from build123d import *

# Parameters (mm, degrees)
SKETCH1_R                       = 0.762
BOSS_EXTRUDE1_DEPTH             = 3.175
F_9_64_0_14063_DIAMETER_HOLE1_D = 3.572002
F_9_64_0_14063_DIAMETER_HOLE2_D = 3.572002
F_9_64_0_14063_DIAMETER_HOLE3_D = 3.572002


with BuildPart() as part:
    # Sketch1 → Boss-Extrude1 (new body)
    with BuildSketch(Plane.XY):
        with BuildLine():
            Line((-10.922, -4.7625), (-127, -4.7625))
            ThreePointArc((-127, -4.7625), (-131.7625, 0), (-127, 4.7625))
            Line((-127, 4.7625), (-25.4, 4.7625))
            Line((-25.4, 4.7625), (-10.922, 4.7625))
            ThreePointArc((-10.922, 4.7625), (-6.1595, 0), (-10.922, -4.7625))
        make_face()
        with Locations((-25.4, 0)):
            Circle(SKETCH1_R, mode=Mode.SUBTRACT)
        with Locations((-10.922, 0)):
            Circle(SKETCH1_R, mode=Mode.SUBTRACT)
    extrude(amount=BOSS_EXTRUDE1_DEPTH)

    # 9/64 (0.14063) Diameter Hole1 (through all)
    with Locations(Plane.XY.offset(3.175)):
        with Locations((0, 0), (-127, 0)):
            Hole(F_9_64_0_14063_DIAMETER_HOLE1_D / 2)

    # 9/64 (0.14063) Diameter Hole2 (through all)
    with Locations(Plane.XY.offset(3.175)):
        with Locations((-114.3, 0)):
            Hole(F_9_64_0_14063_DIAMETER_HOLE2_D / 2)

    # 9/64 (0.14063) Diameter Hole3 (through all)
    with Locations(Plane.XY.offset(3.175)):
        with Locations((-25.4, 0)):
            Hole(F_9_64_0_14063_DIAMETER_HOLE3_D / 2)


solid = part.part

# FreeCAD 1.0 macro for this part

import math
import FreeCAD as App
import Part
import Sketcher
Q = App.Units.Quantity

doc = App.newDocument("Part")
body = doc.addObject("PartDesign::Body", "Body")

# Sketch on XY plane
sketch1 = doc.addObject("Sketcher::SketchObject", "Sketch")
body.addObject(sketch1)
sketch1.AttachmentSupport = (doc.XY_Plane, [""])
sketch1.MapMode = "FlatFace"
sketch1.addGeometry([
    Part.LineSegment(App.Vector(-127, -4.8, 0), App.Vector(-10.9, -4.8, 0)),  # 0
    Part.ArcOfCircle(Part.Circle(App.Vector(-10.9, 0, 0), App.Vector(0, 0, 1), 4.8), math.radians(-90), math.radians(90)),  # 1
    Part.LineSegment(App.Vector(-10.9, 4.8, 0), App.Vector(-127, 4.8, 0)),  # 2
    Part.ArcOfCircle(Part.Circle(App.Vector(-127, 0, 0), App.Vector(0, 0, 1), 4.8), math.radians(90), math.radians(270)),  # 3
    Part.Circle(App.Vector(-10.9, 0, 0), App.Vector(0, 0, 1), 0.8),  # 4
    Part.Circle(App.Vector(-25.4, 0, 0), App.Vector(0, 0, 1), 0.8),  # 5
], False)
sketch1.addConstraint([
    Sketcher.Constraint("Tangent", 0, 2, 1, 1),
    Sketcher.Constraint("Tangent", 1, 2, 2, 1),
    Sketcher.Constraint("Tangent", 2, 2, 3, 1),
    Sketcher.Constraint("Tangent", 3, 2, 0, 1),
    Sketcher.Constraint("Horizontal", 0),
    Sketcher.Constraint("Horizontal", 2),
    Sketcher.Constraint("Coincident", 4, 3, 1, 3),
    Sketcher.Constraint("Equal", 4, 5),
    Sketcher.Constraint("PointOnObject", 1, 3, -1),
    Sketcher.Constraint("PointOnObject", 5, 3, -1),
    Sketcher.Constraint("Diameter", 4, Q("0.06 in")),
    Sketcher.Constraint("DistanceX", 3, 3, -1, 1, Q("5 in")),
    Sketcher.Constraint("DistanceX", 5, 3, -1, 1, Q("1 in")),
    Sketcher.Constraint("Radius", 1, Q("0.1875 in")),
    Sketcher.Constraint("DistanceX", 0, 1, 0, 2, Q("4.57 in")),
])
pad1 = doc.addObject("PartDesign::Pad", "Pad")
body.addObject(pad1)
pad1.Profile = sketch1
pad1.Length = Q("0.125 in")

# Sketch on XY plane
sketch2 = doc.addObject("Sketcher::SketchObject", "Sketch001")
body.addObject(sketch2)
sketch2.AttachmentSupport = (doc.XY_Plane, [""])
sketch2.MapMode = "FlatFace"
sketch2.AttachmentOffset = App.Placement(App.Vector(0, 0, 0.125 * 25.4), App.Rotation())
sketch2.addGeometry([
    Part.Circle(App.Vector(0, 0, 0), App.Vector(0, 0, 1), 1.8),
    Part.Circle(App.Vector(-127, 0, 0), App.Vector(0, 0, 1), 1.8),
], False)
sketch2.addConstraint([
    Sketcher.Constraint("Coincident", 0, 3, -1, 1),
    Sketcher.Constraint("Equal", 0, 1),
    Sketcher.Constraint("PointOnObject", 1, 3, -1),
    Sketcher.Constraint("DistanceX", 1, 3, -1, 1, Q("5 in")),
    Sketcher.Constraint("Diameter", 0, Q("3.572002 mm")),
])
doc.recompute()
hole = doc.addObject("PartDesign::Hole", "Hole")
body.addObject(hole)
hole.Profile = sketch2
hole.ThreadType = "None"
hole.Diameter = 3.572002
hole.DepthType = "ThroughAll"

# Sketch on XY plane
sketch3 = doc.addObject("Sketcher::SketchObject", "Sketch002")
body.addObject(sketch3)
sketch3.AttachmentSupport = (doc.XY_Plane, [""])
sketch3.MapMode = "FlatFace"
sketch3.AttachmentOffset = App.Placement(App.Vector(0, 0, 0.125 * 25.4), App.Rotation())
sketch3.addGeometry(Part.Circle(App.Vector(-114.3, 0, 0), App.Vector(0, 0, 1), 1.8), False)
sketch3.addConstraint([
    Sketcher.Constraint("PointOnObject", 0, 3, -1),
    Sketcher.Constraint("DistanceX", 0, 3, -1, 1, Q("4.5 in")),
    Sketcher.Constraint("Diameter", 0, Q("3.572002 mm")),
])
doc.recompute()
hole2 = doc.addObject("PartDesign::Hole", "Hole001")
body.addObject(hole2)
hole2.Profile = sketch3
hole2.ThreadType = "None"
hole2.Diameter = 3.572002
hole2.DepthType = "ThroughAll"

# Sketch on XY plane
sketch4 = doc.addObject("Sketcher::SketchObject", "Sketch003")
body.addObject(sketch4)
sketch4.AttachmentSupport = (doc.XY_Plane, [""])
sketch4.MapMode = "FlatFace"
sketch4.AttachmentOffset = App.Placement(App.Vector(0, 0, 0.125 * 25.4), App.Rotation())
sketch4.addGeometry(Part.Circle(App.Vector(-25.4, 0, 0), App.Vector(0, 0, 1), 1.8), False)
sketch4.addConstraint([
    Sketcher.Constraint("PointOnObject", 0, 3, -1),
    Sketcher.Constraint("DistanceX", 0, 3, -1, 1, Q("1 in")),
    Sketcher.Constraint("Diameter", 0, Q("3.572002 mm")),
])
doc.recompute()
hole3 = doc.addObject("PartDesign::Hole", "Hole002")
body.addObject(hole3)
hole3.Profile = sketch4
hole3.ThreadType = "None"
hole3.Diameter = 3.572002
hole3.DepthType = "ThroughAll"

doc.recompute()
